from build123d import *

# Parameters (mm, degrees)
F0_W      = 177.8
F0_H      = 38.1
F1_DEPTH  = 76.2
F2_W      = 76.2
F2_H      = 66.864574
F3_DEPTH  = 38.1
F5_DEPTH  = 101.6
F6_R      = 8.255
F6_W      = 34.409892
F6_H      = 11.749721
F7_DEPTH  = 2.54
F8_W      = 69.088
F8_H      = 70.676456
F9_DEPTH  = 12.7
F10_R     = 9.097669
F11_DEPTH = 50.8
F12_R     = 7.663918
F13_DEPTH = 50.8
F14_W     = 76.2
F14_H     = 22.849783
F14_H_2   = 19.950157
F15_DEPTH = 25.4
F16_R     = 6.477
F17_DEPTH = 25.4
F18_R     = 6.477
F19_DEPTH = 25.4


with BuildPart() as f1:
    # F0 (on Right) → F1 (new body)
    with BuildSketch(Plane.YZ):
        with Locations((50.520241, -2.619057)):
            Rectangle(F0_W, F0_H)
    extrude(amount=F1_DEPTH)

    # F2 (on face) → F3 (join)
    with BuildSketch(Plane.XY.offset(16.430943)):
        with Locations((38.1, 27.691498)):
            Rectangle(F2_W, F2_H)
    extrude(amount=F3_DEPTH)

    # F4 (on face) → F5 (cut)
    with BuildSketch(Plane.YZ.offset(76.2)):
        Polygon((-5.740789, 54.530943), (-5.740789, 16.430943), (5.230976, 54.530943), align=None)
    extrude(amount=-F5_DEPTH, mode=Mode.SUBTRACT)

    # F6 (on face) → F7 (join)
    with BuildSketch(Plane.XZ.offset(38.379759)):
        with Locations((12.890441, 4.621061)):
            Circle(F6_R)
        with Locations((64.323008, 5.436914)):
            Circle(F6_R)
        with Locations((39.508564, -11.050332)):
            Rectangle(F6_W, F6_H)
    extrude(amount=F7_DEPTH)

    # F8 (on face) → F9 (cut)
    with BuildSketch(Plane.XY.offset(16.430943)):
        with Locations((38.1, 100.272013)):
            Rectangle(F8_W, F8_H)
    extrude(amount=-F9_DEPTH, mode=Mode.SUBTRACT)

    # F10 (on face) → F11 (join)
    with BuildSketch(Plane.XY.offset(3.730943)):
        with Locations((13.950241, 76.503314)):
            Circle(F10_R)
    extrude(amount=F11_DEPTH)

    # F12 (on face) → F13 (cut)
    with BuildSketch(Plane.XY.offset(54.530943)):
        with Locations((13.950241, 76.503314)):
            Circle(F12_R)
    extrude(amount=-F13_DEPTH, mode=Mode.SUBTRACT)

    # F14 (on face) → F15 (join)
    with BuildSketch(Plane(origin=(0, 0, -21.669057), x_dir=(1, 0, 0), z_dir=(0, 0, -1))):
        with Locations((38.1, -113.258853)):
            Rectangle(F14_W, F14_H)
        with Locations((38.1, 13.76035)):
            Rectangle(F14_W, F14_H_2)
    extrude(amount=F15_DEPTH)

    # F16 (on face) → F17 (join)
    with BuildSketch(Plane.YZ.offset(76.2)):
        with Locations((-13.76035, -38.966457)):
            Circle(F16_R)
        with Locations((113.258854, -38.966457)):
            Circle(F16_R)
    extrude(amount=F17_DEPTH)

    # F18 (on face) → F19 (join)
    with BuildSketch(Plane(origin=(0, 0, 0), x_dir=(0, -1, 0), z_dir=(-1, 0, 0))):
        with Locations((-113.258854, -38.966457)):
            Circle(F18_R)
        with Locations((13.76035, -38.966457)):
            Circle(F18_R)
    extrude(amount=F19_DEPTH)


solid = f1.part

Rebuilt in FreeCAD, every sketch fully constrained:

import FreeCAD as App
import Part
import Sketcher

V = App.Vector
Q = App.Units.Quantity

doc = App.newDocument("Part")
body = doc.addObject("PartDesign::Body", "Body")

sketch1 = body.newObject("Sketcher::SketchObject", "Sketch")
sketch1.AttachmentSupport = (doc.getObject("YZ_Plane"), [""])
sketch1.MapMode = "FlatFace"
sketch1.addGeometry(Part.LineSegment(V(-38.379759, 16.430943, 0), V(-38.379759, -21.669057, 0)), False)
sketch1.addGeometry(Part.LineSegment(V(-38.379759, -21.669057, 0), V(139.420241, -21.669057, 0)), False)
sketch1.addGeometry(Part.LineSegment(V(139.420241, -21.669057, 0), V(139.420241, 16.430943, 0)), False)
sketch1.addGeometry(Part.LineSegment(V(139.420241, 16.430943, 0), V(-38.379759, 16.430943, 0)), False)
sketch1.addConstraint(Sketcher.Constraint("Coincident", 0, 2, 1, 1))
sketch1.addConstraint(Sketcher.Constraint("Coincident", 1, 2, 2, 1))
sketch1.addConstraint(Sketcher.Constraint("Coincident", 2, 2, 3, 1))
sketch1.addConstraint(Sketcher.Constraint("Coincident", 3, 2, 0, 1))
sketch1.addConstraint(Sketcher.Constraint("Vertical", 0))
sketch1.addConstraint(Sketcher.Constraint("Horizontal", 1))
sketch1.addConstraint(Sketcher.Constraint("Vertical", 2))
sketch1.addConstraint(Sketcher.Constraint("Horizontal", 3))
sketch1.addConstraint(Sketcher.Constraint("DistanceX", 1, 1, 1, 2, Q("7 in")))
sketch1.addConstraint(Sketcher.Constraint("DistanceY", 0, 2, 0, 1, Q("1.5 in")))
sketch1.addConstraint(Sketcher.Constraint("DistanceX", 0, 2, -1, 1, Q("38.379759 mm")))
sketch1.addConstraint(Sketcher.Constraint("DistanceY", 0, 2, -1, 1, Q("21.669057 mm")))
pad1 = body.newObject("PartDesign::Pad", "Pad")
pad1.Profile = sketch1
pad1.Length = Q("3 in")

sketch2 = body.newObject("Sketcher::SketchObject", "Sketch001")
sketch2.AttachmentSupport = (doc.getObject("XY_Plane"), [""])
sketch2.MapMode = "FlatFace"
sketch2.AttachmentOffset = App.Placement(V(0, 0, 16.430943), App.Rotation())
sketch2.addGeometry(Part.LineSegment(V(0, 61.123785, 0), V(0, -5.740789, 0)), False)
sketch2.addGeometry(Part.LineSegment(V(0, -5.740789, 0), V(76.2, -5.740789, 0)), False)
sketch2.addGeometry(Part.LineSegment(V(76.2, -5.740789, 0), V(76.2, 61.123785, 0)), False)
sketch2.addGeometry(Part.LineSegment(V(76.2, 61.123785, 0), V(0, 61.123785, 0)), False)
sketch2.addConstraint(Sketcher.Constraint("Coincident", 0, 2, 1, 1))
sketch2.addConstraint(Sketcher.Constraint("Coincident", 1, 2, 2, 1))
sketch2.addConstraint(Sketcher.Constraint("Coincident", 2, 2, 3, 1))
sketch2.addConstraint(Sketcher.Constraint("Coincident", 3, 2, 0, 1))
sketch2.addConstraint(Sketcher.Constraint("Vertical", 0))
sketch2.addConstraint(Sketcher.Constraint("Horizontal", 1))
sketch2.addConstraint(Sketcher.Constraint("Vertical", 2))
sketch2.addConstraint(Sketcher.Constraint("Horizontal", 3))
sketch2.addConstraint(Sketcher.Constraint("PointOnObject", 0, 2, -2))
sketch2.addConstraint(Sketcher.Constraint("DistanceX", 1, 1, 1, 2, Q("3 in")))
sketch2.addConstraint(Sketcher.Constraint("DistanceY", 0, 2, 0, 1, Q("66.864574 mm")))
sketch2.addConstraint(Sketcher.Constraint("DistanceY", 0, 2, -1, 1, Q("5.740789 mm")))
pad2 = body.newObject("PartDesign::Pad", "Pad001")
pad2.Profile = sketch2
pad2.Length = Q("1.5 in")

sketch3 = body.newObject("Sketcher::SketchObject", "Sketch002")
sketch3.AttachmentSupport = (doc.getObject("YZ_Plane"), [""])
sketch3.MapMode = "FlatFace"
sketch3.AttachmentOffset = App.Placement(V(0, 0, 3 * 25.4), App.Rotation())
sketch3.addGeometry(Part.LineSegment(V(-5.740789, 54.530943, 0), V(-5.740789, 16.430943, 0)), False)
sketch3.addGeometry(Part.LineSegment(V(-5.740789, 16.430943, 0), V(5.230976, 54.530943, 0)), False)
sketch3.addGeometry(Part.LineSegment(V(5.230976, 54.530943, 0), V(-5.740789, 54.530943, 0)), False)
sketch3.addConstraint(Sketcher.Constraint("Coincident", 0, 2, 1, 1))
sketch3.addConstraint(Sketcher.Constraint("Coincident", 1, 2, 2, 1))
sketch3.addConstraint(Sketcher.Constraint("Coincident", 2, 2, 0, 1))
sketch3.addConstraint(Sketcher.Constraint("Vertical", 0))
sketch3.addConstraint(Sketcher.Constraint("Horizontal", 2))
sketch3.addConstraint(Sketcher.Constraint("DistanceY", 0, 2, 0, 1, Q("1.5 in")))
sketch3.addConstraint(Sketcher.Constraint("DistanceX", 2, 2, 2, 1, Q("10.971765 mm")))
sketch3.addConstraint(Sketcher.Constraint("DistanceX", 0, 2, -1, 1, Q("5.740789 mm")))
sketch3.addConstraint(Sketcher.Constraint("DistanceY", -1, 1, 0, 2, Q("16.430943 mm")))
pocket1 = body.newObject("PartDesign::Pocket", "Pocket")
pocket1.Profile = sketch3
pocket1.Length = Q("4 in")

sketch4 = body.newObject("Sketcher::SketchObject", "Sketch003")
sketch4.AttachmentSupport = (doc.getObject("XZ_Plane"), [""])
sketch4.MapMode = "FlatFace"
sketch4.AttachmentOffset = App.Placement(V(0, 0, 38.379759), App.Rotation())
sketch4.addGeometry(Part.Circle(V(12.890441, 4.621061, 0), V(0, 0, 1), 8.255), False)
sketch4.addGeometry(Part.Circle(V(64.323008, 5.436914, 0), V(0, 0, 1), 8.255), False)
sketch4.addGeometry(Part.LineSegment(V(22.303618, -5.175471, 0), V(22.303618, -16.925193, 0)), False)
sketch4.addGeometry(Part.LineSegment(V(22.303618, -16.925193, 0), V(56.71351, -16.925193, 0)), False)
sketch4.addGeometry(Part.LineSegment(V(56.71351, -16.925193, 0), V(56.71351, -5.175471, 0)), False)
sketch4.addGeometry(Part.LineSegment(V(56.71351, -5.175471, 0), V(22.303618, -5.175471, 0)), False)
sketch4.addConstraint(Sketcher.Constraint("Coincident", 2, 2, 3, 1))
sketch4.addConstraint(Sketcher.Constraint("Coincident", 3, 2, 4, 1))
sketch4.addConstraint(Sketcher.Constraint("Coincident", 4, 2, 5, 1))
sketch4.addConstraint(Sketcher.Constraint("Coincident", 5, 2, 2, 1))
sketch4.addConstraint(Sketcher.Constraint("Vertical", 2))
sketch4.addConstraint(Sketcher.Constraint("Horizontal", 3))
sketch4.addConstraint(Sketcher.Constraint("Vertical", 4))
sketch4.addConstraint(Sketcher.Constraint("Horizontal", 5))
sketch4.addConstraint(Sketcher.Constraint("Equal", 0, 1))
sketch4.addConstraint(Sketcher.Constraint("Diameter", 0, Q("0.65 in")))
sketch4.addConstraint(Sketcher.Constraint("DistanceY", 2, 2, 2, 1, Q("11.749721 mm")))
sketch4.addConstraint(Sketcher.Constraint("DistanceX", 3, 2, 1, 3, Q("7.609498 mm")))
sketch4.addConstraint(Sketcher.Constraint("DistanceX", 3, 1, 3, 2, Q("34.409892 mm")))
sketch4.addConstraint(Sketcher.Constraint("DistanceX", -1, 1, 0, 3, Q("12.890441 mm")))
sketch4.addConstraint(Sketcher.Constraint("DistanceY", -1, 1, 0, 3, Q("4.621061 mm")))
sketch4.addConstraint(Sketcher.Constraint("DistanceX", -1, 1, 1, 3, Q("64.323008 mm")))
sketch4.addConstraint(Sketcher.Constraint("DistanceY", 4, 2, -1, 1, Q("5.175471 mm")))
sketch4.addConstraint(Sketcher.Constraint("DistanceY", -1, 1, 1, 3, Q("5.436914 mm")))
pad3 = body.newObject("PartDesign::Pad", "Pad002")
pad3.Profile = sketch4
pad3.Length = Q("0.1 in")

sketch5 = body.newObject("Sketcher::SketchObject", "Sketch004")
sketch5.AttachmentSupport = (doc.getObject("XY_Plane"), [""])
sketch5.MapMode = "FlatFace"
sketch5.AttachmentOffset = App.Placement(V(0, 0, 16.430943), App.Rotation())
sketch5.addGeometry(Part.LineSegment(V(3.556, 135.610241, 0), V(3.556, 64.933785, 0)), False)
sketch5.addGeometry(Part.LineSegment(V(3.556, 64.933785, 0), V(72.644, 64.933785, 0)), False)
sketch5.addGeometry(Part.LineSegment(V(72.644, 64.933785, 0), V(72.644, 135.610241, 0)), False)
sketch5.addGeometry(Part.LineSegment(V(72.644, 135.610241, 0), V(3.556, 135.610241, 0)), False)
sketch5.addConstraint(Sketcher.Constraint("Coincident", 0, 2, 1, 1))
sketch5.addConstraint(Sketcher.Constraint("Coincident", 1, 2, 2, 1))
sketch5.addConstraint(Sketcher.Constraint("Coincident", 2, 2, 3, 1))
sketch5.addConstraint(Sketcher.Constraint("Coincident", 3, 2, 0, 1))
sketch5.addConstraint(Sketcher.Constraint("Vertical", 0))
sketch5.addConstraint(Sketcher.Constraint("Horizontal", 1))
sketch5.addConstraint(Sketcher.Constraint("Vertical", 2))
sketch5.addConstraint(Sketcher.Constraint("Horizontal", 3))
sketch5.addConstraint(Sketcher.Constraint("DistanceX", 1, 1, 1, 2, Q("2.72 in")))
sketch5.addConstraint(Sketcher.Constraint("DistanceX", -1, 1, 0, 2, Q("0.14 in")))
sketch5.addConstraint(Sketcher.Constraint("DistanceY", 0, 2, 0, 1, Q("70.676456 mm")))
sketch5.addConstraint(Sketcher.Constraint("DistanceY", -1, 1, 2, 2, Q("135.610241 mm")))
pocket2 = body.newObject("PartDesign::Pocket", "Pocket001")
pocket2.Profile = sketch5
pocket2.Length = Q("0.5 in")

sketch6 = body.newObject("Sketcher::SketchObject", "Sketch005")
sketch6.AttachmentSupport = (doc.getObject("XY_Plane"), [""])
sketch6.MapMode = "FlatFace"
sketch6.AttachmentOffset = App.Placement(V(0, 0, 3.730943), App.Rotation())
sketch6.addGeometry(Part.Circle(V(13.950241, 76.503314, 0), V(0, 0, 1), 9.097669), False)
sketch6.addConstraint(Sketcher.Constraint("Diameter", 0, Q("18.195338 mm")))
sketch6.addConstraint(Sketcher.Constraint("DistanceX", -1, 1, 0, 3, Q("13.950241 mm")))
sketch6.addConstraint(Sketcher.Constraint("DistanceY", -1, 1, 0, 3, Q("76.503314 mm")))
pad4 = body.newObject("PartDesign::Pad", "Pad003")
pad4.Profile = sketch6
pad4.Length = Q("2 in")

sketch7 = body.newObject("Sketcher::SketchObject", "Sketch006")
sketch7.AttachmentSupport = (doc.getObject("XY_Plane"), [""])
sketch7.MapMode = "FlatFace"
sketch7.AttachmentOffset = App.Placement(V(0, 0, 54.530943), App.Rotation())
sketch7.addGeometry(Part.Circle(V(13.950241, 76.503314, 0), V(0, 0, 1), 7.663918), False)
sketch7.addConstraint(Sketcher.Constraint("Diameter", 0, Q("15.327836 mm")))
sketch7.addConstraint(Sketcher.Constraint("DistanceX", -1, 1, 0, 3, Q("13.950241 mm")))
sketch7.addConstraint(Sketcher.Constraint("DistanceY", -1, 1, 0, 3, Q("76.503314 mm")))
pocket3 = body.newObject("PartDesign::Pocket", "Pocket002")
pocket3.Profile = sketch7
pocket3.Length = Q("2 in")

sketch8 = body.newObject("Sketcher::SketchObject", "Sketch007")
sketch8.AttachmentSupport = (doc.getObject("XY_Plane"), [""])
sketch8.MapMode = "FlatFace"
sketch8.AttachmentOffset = App.Placement(V(0, 0, -21.669057), App.Rotation())
sketch8.addGeometry(Part.LineSegment(V(0, 101.833962, 0), V(0, 124.683745, 0)), False)
sketch8.addGeometry(Part.LineSegment(V(0, 124.683745, 0), V(76.2, 124.683745, 0)), False)
sketch8.addGeometry(Part.LineSegment(V(76.2, 124.683745, 0), V(76.2, 101.833962, 0)), False)
sketch8.addGeometry(Part.LineSegment(V(76.2, 101.833962, 0), V(0, 101.833962, 0)), False)
sketch8.addGeometry(Part.LineSegment(V(0, -23.735429, 0), V(0, -3.785271, 0)), False)
sketch8.addGeometry(Part.LineSegment(V(0, -3.785271, 0), V(76.2, -3.785271, 0)), False)
sketch8.addGeometry(Part.LineSegment(V(76.2, -3.785271, 0), V(76.2, -23.735429, 0)), False)
sketch8.addGeometry(Part.LineSegment(V(76.2, -23.735429, 0), V(0, -23.735429, 0)), False)
sketch8.addConstraint(Sketcher.Constraint("Coincident", 0, 2, 1, 1))
sketch8.addConstraint(Sketcher.Constraint("Coincident", 1, 2, 2, 1))
sketch8.addConstraint(Sketcher.Constraint("Coincident", 2, 2, 3, 1))
sketch8.addConstraint(Sketcher.Constraint("Coincident", 3, 2, 0, 1))
sketch8.addConstraint(Sketcher.Constraint("Coincident", 4, 2, 5, 1))
sketch8.addConstraint(Sketcher.Constraint("Coincident", 5, 2, 6, 1))
sketch8.addConstraint(Sketcher.Constraint("Coincident", 6, 2, 7, 1))
sketch8.addConstraint(Sketcher.Constraint("Coincident", 7, 2, 4, 1))
sketch8.addConstraint(Sketcher.Constraint("Vertical", 0))
sketch8.addConstraint(Sketcher.Constraint("Horizontal", 1))
sketch8.addConstraint(Sketcher.Constraint("Vertical", 2))
sketch8.addConstraint(Sketcher.Constraint("Horizontal", 3))
sketch8.addConstraint(Sketcher.Constraint("Vertical", 4))
sketch8.addConstraint(Sketcher.Constraint("Horizontal", 5))
sketch8.addConstraint(Sketcher.Constraint("Vertical", 6))
sketch8.addConstraint(Sketcher.Constraint("Horizontal", 7))
sketch8.addConstraint(Sketcher.Constraint("PointOnObject", 0, 2, -2))
sketch8.addConstraint(Sketcher.Constraint("PointOnObject", 4, 2, -2))
sketch8.addConstraint(Sketcher.Constraint("Vertical", 2, 2, 5, 2))
sketch8.addConstraint(Sketcher.Constraint("DistanceX", 1, 1, 1, 2, Q("3 in")))
sketch8.addConstraint(Sketcher.Constraint("DistanceY", 0, 1, 0, 2, Q("22.849783 mm")))
sketch8.addConstraint(Sketcher.Constraint("DistanceY", 4, 1, 4, 2, Q("19.950157 mm")))
sketch8.addConstraint(Sketcher.Constraint("DistanceY", -1, 1, 2, 2, Q("101.833962 mm")))
sketch8.addConstraint(Sketcher.Constraint("DistanceY", 4, 2, -1, 1, Q("3.785271 mm")))
pad5 = body.newObject("PartDesign::Pad", "Pad004")
pad5.Profile = sketch8
pad5.Length = Q("1 in")
pad5.Reversed = True

sketch9 = body.newObject("Sketcher::SketchObject", "Sketch008")
sketch9.AttachmentSupport = (doc.getObject("YZ_Plane"), [""])
sketch9.MapMode = "FlatFace"
sketch9.AttachmentOffset = App.Placement(V(0, 0, 3 * 25.4), App.Rotation())
sketch9.addGeometry(Part.Circle(V(-13.76035, -38.966457, 0), V(0, 0, 1), 6.477), False)
sketch9.addGeometry(Part.Circle(V(113.258854, -38.966457, 0), V(0, 0, 1), 6.477), False)
sketch9.addConstraint(Sketcher.Constraint("Equal", 0, 1))
sketch9.addConstraint(Sketcher.Constraint("Horizontal", 0, 3, 1, 3))
sketch9.addConstraint(Sketcher.Constraint("Diameter", 0, Q("0.51 in")))
sketch9.addConstraint(Sketcher.Constraint("DistanceX", 0, 3, -1, 1, Q("13.76035 mm")))
sketch9.addConstraint(Sketcher.Constraint("DistanceY", 0, 3, -1, 1, Q("38.966457 mm")))
sketch9.addConstraint(Sketcher.Constraint("DistanceX", -1, 1, 1, 3, Q("113.258854 mm")))
pad6 = body.newObject("PartDesign::Pad", "Pad005")
pad6.Profile = sketch9
pad6.Length = Q("1 in")

sketch10 = body.newObject("Sketcher::SketchObject", "Sketch009")
sketch10.AttachmentSupport = (doc.getObject("YZ_Plane"), [""])
sketch10.MapMode = "FlatFace"
sketch10.addGeometry(Part.Circle(V(113.258854, -38.966457, 0), V(0, 0, 1), 6.477), False)
sketch10.addGeometry(Part.Circle(V(-13.76035, -38.966457, 0), V(0, 0, 1), 6.477), False)
sketch10.addConstraint(Sketcher.Constraint("Equal", 0, 1))
sketch10.addConstraint(Sketcher.Constraint("Horizontal", 0, 3, 1, 3))
sketch10.addConstraint(Sketcher.Constraint("Diameter", 0, Q("0.51 in")))
sketch10.addConstraint(Sketcher.Constraint("DistanceX", 1, 3, -1, 1, Q("13.76035 mm")))
sketch10.addConstraint(Sketcher.Constraint("DistanceX", -1, 1, 0, 3, Q("113.258854 mm")))
sketch10.addConstraint(Sketcher.Constraint("DistanceY", 0, 3, -1, 1, Q("38.966457 mm")))
pad7 = body.newObject("PartDesign::Pad", "Pad006")
pad7.Profile = sketch10
pad7.Length = Q("1 in")
pad7.Reversed = True

doc.recompute()
